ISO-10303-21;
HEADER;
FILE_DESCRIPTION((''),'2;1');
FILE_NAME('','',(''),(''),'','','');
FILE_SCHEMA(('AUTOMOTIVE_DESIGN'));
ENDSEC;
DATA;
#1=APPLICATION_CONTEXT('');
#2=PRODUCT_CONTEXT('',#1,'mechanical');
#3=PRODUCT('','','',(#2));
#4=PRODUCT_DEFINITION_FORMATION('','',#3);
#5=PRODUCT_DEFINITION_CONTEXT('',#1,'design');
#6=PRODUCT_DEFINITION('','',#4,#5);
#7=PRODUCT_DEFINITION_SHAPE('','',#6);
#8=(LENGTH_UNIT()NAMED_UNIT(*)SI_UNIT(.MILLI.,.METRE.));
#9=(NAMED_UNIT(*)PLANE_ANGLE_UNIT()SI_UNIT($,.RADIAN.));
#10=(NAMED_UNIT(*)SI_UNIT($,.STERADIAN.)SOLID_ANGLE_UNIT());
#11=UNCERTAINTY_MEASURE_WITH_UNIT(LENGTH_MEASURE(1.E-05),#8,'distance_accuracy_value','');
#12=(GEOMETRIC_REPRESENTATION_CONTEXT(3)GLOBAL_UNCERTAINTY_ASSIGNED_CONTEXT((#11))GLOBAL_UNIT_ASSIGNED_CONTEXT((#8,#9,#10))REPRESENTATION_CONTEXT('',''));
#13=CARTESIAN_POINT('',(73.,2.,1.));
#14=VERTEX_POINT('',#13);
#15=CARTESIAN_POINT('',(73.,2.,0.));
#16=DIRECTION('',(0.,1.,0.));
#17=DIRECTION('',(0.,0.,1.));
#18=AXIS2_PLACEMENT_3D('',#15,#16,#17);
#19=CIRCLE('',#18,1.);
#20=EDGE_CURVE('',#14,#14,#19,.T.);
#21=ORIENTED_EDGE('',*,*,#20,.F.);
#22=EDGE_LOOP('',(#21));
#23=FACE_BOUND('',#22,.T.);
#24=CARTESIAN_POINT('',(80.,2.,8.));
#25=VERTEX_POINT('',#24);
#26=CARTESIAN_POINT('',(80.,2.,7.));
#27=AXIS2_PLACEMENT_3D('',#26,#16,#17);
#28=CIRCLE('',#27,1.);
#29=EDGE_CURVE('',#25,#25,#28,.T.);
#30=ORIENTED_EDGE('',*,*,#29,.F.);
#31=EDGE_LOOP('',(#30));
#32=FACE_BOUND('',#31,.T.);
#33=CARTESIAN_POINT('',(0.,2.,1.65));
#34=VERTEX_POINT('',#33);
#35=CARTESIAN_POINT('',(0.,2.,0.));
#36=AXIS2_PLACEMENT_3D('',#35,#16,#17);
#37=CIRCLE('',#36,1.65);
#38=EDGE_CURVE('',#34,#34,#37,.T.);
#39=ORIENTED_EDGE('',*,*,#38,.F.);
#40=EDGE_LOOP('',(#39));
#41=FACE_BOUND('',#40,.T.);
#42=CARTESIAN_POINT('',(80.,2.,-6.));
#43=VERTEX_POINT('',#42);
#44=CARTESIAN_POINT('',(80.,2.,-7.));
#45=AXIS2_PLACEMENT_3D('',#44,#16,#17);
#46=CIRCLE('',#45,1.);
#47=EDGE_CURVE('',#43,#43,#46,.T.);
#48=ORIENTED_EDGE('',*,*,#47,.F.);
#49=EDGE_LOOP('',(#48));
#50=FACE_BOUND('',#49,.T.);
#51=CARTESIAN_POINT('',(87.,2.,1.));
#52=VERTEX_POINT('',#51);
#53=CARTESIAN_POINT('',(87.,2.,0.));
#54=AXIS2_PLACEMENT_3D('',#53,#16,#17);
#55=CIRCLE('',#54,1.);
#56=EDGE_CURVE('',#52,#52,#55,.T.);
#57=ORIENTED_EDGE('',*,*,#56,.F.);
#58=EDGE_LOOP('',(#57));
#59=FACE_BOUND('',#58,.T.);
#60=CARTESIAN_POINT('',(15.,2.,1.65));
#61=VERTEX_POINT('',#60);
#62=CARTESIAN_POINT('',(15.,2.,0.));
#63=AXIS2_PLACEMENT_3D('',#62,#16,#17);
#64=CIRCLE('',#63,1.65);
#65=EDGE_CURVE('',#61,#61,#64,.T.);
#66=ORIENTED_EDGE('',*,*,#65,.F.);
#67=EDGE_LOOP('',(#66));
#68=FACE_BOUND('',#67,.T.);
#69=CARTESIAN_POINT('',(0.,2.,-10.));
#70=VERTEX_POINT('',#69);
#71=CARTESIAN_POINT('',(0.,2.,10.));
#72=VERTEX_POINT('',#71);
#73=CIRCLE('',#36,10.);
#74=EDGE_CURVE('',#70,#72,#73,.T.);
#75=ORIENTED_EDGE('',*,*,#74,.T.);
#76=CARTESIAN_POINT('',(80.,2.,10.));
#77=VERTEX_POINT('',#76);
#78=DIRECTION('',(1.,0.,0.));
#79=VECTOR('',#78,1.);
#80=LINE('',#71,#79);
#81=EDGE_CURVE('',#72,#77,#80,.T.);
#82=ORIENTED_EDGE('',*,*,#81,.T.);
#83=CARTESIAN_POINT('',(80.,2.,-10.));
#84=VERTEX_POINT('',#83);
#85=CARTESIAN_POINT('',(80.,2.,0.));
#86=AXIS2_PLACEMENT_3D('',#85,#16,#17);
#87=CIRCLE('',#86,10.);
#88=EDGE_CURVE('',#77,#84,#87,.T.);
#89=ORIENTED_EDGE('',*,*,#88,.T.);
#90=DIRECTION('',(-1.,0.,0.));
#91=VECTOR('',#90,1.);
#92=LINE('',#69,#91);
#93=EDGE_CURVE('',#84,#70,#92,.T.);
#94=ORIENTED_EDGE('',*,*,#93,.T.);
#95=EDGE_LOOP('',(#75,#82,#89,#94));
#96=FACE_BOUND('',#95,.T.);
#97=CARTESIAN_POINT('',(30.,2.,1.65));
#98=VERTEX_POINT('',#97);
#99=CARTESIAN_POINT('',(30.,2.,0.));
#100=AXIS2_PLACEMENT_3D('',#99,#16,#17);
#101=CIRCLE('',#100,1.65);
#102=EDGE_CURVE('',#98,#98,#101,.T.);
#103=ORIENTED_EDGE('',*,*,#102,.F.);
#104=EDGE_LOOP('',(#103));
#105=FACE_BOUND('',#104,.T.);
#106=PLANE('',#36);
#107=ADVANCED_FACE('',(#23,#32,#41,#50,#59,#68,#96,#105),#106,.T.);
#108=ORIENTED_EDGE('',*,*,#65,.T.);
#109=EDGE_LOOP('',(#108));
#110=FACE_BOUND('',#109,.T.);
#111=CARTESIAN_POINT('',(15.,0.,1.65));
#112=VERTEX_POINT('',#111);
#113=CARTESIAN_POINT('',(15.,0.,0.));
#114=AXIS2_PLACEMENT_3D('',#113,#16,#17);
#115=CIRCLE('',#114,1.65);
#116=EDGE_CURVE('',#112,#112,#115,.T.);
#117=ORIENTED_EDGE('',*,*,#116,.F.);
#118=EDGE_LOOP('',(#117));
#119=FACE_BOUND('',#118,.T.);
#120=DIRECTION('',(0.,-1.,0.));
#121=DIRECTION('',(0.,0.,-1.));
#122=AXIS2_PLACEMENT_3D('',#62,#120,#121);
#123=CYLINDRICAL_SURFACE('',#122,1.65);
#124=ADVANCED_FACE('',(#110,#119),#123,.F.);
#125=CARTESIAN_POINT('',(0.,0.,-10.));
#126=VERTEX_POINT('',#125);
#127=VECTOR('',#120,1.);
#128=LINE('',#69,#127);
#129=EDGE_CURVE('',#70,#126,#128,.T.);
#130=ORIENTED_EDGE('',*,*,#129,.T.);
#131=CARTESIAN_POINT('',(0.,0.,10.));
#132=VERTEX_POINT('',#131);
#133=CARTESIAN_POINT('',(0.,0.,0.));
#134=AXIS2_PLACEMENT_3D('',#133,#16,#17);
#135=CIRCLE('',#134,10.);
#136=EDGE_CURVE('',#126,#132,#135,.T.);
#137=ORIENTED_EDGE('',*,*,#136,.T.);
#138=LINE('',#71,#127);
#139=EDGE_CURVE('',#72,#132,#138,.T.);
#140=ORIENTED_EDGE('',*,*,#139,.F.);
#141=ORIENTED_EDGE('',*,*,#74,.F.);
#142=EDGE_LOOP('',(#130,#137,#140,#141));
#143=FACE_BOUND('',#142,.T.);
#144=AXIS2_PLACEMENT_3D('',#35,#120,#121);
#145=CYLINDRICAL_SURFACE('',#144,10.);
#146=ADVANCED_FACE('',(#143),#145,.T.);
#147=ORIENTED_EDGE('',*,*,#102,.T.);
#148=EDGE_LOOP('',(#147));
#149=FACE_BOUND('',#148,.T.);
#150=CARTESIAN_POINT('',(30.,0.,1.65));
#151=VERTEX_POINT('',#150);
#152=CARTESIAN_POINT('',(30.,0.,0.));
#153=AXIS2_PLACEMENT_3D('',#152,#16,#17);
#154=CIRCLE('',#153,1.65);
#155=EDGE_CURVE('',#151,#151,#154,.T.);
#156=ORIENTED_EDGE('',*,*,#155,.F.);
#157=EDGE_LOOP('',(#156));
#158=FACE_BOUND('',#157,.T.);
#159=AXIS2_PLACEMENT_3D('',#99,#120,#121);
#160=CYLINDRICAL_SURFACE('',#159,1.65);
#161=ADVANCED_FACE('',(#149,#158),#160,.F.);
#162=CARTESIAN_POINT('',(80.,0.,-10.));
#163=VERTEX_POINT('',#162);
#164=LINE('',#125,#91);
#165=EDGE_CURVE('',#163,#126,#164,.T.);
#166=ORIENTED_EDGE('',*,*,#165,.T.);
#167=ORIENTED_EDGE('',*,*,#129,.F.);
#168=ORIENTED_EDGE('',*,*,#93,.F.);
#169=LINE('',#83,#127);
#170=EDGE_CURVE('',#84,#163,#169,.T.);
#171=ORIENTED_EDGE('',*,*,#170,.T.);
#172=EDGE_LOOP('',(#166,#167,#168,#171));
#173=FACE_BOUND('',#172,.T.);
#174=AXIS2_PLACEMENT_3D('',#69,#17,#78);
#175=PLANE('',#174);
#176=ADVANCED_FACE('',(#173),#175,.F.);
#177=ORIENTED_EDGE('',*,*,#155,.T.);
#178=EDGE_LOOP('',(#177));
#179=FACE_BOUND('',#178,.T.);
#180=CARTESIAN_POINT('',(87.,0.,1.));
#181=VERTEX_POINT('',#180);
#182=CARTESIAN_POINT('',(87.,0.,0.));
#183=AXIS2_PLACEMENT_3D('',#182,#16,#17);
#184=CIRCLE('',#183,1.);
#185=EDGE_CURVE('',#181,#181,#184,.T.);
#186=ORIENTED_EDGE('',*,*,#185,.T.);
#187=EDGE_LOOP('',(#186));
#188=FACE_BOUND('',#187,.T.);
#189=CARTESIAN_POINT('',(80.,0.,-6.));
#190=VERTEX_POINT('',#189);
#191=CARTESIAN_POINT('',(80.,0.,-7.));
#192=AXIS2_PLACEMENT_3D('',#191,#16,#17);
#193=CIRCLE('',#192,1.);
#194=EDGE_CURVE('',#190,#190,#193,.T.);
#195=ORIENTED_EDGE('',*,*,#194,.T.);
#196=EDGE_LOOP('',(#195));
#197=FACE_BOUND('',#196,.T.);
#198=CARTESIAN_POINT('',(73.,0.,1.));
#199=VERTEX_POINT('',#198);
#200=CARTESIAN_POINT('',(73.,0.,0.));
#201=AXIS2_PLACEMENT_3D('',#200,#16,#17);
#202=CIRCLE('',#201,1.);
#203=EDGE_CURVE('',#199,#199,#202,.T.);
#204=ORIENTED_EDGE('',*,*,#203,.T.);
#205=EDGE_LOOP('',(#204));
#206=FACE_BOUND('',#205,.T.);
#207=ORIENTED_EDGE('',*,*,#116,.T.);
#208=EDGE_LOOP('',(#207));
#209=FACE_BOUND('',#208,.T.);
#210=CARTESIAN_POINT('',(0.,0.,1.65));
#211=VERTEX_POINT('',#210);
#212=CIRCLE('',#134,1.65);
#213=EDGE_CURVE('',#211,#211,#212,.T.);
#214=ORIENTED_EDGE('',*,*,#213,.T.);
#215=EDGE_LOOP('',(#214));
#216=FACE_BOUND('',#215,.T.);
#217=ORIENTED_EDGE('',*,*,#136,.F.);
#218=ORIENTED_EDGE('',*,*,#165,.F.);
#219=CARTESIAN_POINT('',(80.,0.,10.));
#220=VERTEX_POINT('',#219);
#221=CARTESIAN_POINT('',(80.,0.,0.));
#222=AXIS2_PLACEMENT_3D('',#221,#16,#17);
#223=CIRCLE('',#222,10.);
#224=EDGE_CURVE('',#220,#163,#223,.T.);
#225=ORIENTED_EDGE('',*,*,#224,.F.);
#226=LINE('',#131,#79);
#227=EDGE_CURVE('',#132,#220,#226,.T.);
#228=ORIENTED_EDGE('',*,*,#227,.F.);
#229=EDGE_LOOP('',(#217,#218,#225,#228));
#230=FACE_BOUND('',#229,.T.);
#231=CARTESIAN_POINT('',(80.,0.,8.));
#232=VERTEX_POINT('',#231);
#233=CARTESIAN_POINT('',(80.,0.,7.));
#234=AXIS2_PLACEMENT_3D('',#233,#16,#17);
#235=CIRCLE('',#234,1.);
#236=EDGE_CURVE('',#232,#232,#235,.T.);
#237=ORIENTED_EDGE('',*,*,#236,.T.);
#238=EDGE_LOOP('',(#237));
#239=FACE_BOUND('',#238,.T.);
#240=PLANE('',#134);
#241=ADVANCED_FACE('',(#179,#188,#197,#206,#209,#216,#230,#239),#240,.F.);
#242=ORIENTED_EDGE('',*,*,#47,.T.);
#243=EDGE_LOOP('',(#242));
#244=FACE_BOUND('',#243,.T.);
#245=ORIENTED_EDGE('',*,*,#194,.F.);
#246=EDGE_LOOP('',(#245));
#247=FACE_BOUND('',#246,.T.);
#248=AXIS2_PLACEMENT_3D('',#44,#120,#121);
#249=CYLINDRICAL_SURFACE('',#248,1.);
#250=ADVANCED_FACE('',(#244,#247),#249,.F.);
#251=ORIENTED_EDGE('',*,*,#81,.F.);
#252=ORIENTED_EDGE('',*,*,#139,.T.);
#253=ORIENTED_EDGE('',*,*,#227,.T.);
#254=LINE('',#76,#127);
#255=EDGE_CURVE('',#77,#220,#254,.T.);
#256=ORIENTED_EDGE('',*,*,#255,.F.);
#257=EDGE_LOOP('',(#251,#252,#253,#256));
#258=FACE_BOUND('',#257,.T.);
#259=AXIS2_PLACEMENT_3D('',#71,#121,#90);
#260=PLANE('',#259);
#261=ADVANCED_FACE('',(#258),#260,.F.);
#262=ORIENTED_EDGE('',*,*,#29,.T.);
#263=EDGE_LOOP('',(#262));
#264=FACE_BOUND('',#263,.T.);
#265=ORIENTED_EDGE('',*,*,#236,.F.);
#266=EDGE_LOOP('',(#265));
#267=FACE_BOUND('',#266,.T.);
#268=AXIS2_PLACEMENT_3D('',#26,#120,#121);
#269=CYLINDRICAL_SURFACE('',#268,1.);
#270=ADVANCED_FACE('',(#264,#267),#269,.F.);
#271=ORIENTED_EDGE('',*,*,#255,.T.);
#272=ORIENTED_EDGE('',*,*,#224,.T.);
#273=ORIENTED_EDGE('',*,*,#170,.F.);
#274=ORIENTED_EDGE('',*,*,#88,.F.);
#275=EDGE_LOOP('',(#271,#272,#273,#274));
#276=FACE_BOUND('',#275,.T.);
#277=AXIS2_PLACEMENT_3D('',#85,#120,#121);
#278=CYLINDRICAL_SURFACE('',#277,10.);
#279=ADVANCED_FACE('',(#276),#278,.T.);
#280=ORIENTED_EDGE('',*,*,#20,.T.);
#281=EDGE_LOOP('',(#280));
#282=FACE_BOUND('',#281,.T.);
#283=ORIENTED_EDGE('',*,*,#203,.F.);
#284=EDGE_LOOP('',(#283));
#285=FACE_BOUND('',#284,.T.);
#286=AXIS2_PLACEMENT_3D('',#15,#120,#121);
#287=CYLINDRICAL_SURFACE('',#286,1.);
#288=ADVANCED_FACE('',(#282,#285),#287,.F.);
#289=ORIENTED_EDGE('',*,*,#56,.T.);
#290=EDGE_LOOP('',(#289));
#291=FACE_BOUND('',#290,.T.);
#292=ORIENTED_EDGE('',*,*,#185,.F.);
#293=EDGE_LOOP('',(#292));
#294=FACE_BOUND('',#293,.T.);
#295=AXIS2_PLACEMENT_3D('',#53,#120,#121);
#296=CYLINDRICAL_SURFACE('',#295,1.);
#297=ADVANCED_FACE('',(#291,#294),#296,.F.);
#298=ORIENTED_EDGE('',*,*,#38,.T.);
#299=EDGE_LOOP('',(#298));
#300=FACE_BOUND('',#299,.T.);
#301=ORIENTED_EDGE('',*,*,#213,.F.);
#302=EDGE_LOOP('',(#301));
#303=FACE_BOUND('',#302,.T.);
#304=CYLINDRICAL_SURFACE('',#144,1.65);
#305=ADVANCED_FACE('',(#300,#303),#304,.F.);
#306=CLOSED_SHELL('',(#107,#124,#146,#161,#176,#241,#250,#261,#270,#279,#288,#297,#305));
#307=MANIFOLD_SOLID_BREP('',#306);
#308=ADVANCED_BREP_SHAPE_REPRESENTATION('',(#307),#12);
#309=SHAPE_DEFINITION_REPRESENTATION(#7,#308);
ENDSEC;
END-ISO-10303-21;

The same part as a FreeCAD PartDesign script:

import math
import FreeCAD as App
import Part
import Sketcher

V = App.Vector
Q = App.Units.Quantity

doc = App.newDocument("Part")
params = doc.addObject("Spreadsheet::Sheet", "Params")
for row, (alias, value) in enumerate([
    ("sketch1_diameter", "2 mm"),
    ("sketch1_radius", "10 mm"),
    ("sketch1_diameter2", "3.3 mm"),
    ("sketch1_width", "80 mm"),
    ("pad1_length", "2 mm"),
], start=1):
    params.set(f"A{row}", alias)
    params.set(f"B{row}", "=" + value)
    params.setAlias(f"B{row}", alias)

body = doc.addObject("PartDesign::Body", "Body")

sketch1 = doc.addObject("Sketcher::SketchObject", "Sketch")
body.addObject(sketch1)
sketch1.AttachmentSupport = (doc.XZ_Plane, [""])
sketch1.MapMode = "FlatFace"
sketch1.addGeometry([
    Part.LineSegment(V(80, -10, 0), V(0, -10, 0)),
    Part.ArcOfCircle(Part.Circle(V(0, 0, 0), V(0, 0, 1), 10), math.radians(90), math.radians(270)),
    Part.LineSegment(V(0, 10, 0), V(80, 10, 0)),
    Part.ArcOfCircle(Part.Circle(V(80, 0, 0), V(0, 0, 1), 10), math.radians(-90), math.radians(90)),
    Part.Circle(V(80, 7, 0), V(0, 0, 1), 1),
    Part.Circle(V(87, 0, 0), V(0, 0, 1), 1),
    Part.Circle(V(73, 0, 0), V(0, 0, 1), 1),
    Part.Circle(V(80, -7, 0), V(0, 0, 1), 1),
    Part.Circle(V(30, 0, 0), V(0, 0, 1), 1.6),
    Part.Circle(V(15, 0, 0), V(0, 0, 1), 1.6),
    Part.Circle(V(0, 0, 0), V(0, 0, 1), 1.6),
], False)
sketch1.addConstraint([
    Sketcher.Constraint("Tangent", 0, 2, 1, 2),
    Sketcher.Constraint("Tangent", 1, 1, 2, 1),
    Sketcher.Constraint("Tangent", 2, 2, 3, 2),
    Sketcher.Constraint("Tangent", 3, 1, 0, 1),
    Sketcher.Constraint("Horizontal", 0),
    Sketcher.Constraint("Horizontal", 2),
    Sketcher.Constraint("Coincident", 1, 3, -1, 1),
    Sketcher.Constraint("Coincident", 10, 3, -1, 1),
    Sketcher.Constraint("Equal", 4, 5),
    Sketcher.Constraint("Equal", 5, 6),
    Sketcher.Constraint("Equal", 6, 7),
    Sketcher.Constraint("Equal", 8, 9),
    Sketcher.Constraint("Equal", 9, 10),
    Sketcher.Constraint("Symmetric", 4, 3, 7, 3, -1),
    Sketcher.Constraint("PointOnObject", 5, 3, -1),
    Sketcher.Constraint("PointOnObject", 6, 3, -1),
    Sketcher.Constraint("PointOnObject", 8, 3, -1),
    Sketcher.Constraint("PointOnObject", 9, 3, -1),
    Sketcher.Constraint("Vertical", 3, 3, 4, 3),
    Sketcher.Constraint("Diameter", 4, Q("2 mm")),
    Sketcher.Constraint("Radius", 1, Q("10 mm")),
    Sketcher.Constraint("Diameter", 8, Q("3.3 mm")),
    Sketcher.Constraint("DistanceX", 0, 2, 0, 1, Q("80 mm")),
    Sketcher.Constraint("DistanceY", -1, 1, 4, 3, Q("7 mm")),
    Sketcher.Constraint("DistanceX", -1, 1, 5, 3, Q("87 mm")),
    Sketcher.Constraint("DistanceX", -1, 1, 6, 3, Q("73 mm")),
    Sketcher.Constraint("DistanceX", -1, 1, 8, 3, Q("30 mm")),
    Sketcher.Constraint("DistanceX", -1, 1, 9, 3, Q("15 mm")),
])
sketch1.setExpression("Constraints[19]", "Params.sketch1_diameter")
sketch1.setExpression("Constraints[20]", "Params.sketch1_radius")
sketch1.setExpression("Constraints[21]", "Params.sketch1_diameter2")
sketch1.setExpression("Constraints[22]", "Params.sketch1_width")
pad1 = doc.addObject("PartDesign::Pad", "Pad")
body.addObject(pad1)
pad1.Profile = sketch1
pad1.setExpression("Length", "Params.pad1_length")
pad1.Reversed = True

doc.recompute()
